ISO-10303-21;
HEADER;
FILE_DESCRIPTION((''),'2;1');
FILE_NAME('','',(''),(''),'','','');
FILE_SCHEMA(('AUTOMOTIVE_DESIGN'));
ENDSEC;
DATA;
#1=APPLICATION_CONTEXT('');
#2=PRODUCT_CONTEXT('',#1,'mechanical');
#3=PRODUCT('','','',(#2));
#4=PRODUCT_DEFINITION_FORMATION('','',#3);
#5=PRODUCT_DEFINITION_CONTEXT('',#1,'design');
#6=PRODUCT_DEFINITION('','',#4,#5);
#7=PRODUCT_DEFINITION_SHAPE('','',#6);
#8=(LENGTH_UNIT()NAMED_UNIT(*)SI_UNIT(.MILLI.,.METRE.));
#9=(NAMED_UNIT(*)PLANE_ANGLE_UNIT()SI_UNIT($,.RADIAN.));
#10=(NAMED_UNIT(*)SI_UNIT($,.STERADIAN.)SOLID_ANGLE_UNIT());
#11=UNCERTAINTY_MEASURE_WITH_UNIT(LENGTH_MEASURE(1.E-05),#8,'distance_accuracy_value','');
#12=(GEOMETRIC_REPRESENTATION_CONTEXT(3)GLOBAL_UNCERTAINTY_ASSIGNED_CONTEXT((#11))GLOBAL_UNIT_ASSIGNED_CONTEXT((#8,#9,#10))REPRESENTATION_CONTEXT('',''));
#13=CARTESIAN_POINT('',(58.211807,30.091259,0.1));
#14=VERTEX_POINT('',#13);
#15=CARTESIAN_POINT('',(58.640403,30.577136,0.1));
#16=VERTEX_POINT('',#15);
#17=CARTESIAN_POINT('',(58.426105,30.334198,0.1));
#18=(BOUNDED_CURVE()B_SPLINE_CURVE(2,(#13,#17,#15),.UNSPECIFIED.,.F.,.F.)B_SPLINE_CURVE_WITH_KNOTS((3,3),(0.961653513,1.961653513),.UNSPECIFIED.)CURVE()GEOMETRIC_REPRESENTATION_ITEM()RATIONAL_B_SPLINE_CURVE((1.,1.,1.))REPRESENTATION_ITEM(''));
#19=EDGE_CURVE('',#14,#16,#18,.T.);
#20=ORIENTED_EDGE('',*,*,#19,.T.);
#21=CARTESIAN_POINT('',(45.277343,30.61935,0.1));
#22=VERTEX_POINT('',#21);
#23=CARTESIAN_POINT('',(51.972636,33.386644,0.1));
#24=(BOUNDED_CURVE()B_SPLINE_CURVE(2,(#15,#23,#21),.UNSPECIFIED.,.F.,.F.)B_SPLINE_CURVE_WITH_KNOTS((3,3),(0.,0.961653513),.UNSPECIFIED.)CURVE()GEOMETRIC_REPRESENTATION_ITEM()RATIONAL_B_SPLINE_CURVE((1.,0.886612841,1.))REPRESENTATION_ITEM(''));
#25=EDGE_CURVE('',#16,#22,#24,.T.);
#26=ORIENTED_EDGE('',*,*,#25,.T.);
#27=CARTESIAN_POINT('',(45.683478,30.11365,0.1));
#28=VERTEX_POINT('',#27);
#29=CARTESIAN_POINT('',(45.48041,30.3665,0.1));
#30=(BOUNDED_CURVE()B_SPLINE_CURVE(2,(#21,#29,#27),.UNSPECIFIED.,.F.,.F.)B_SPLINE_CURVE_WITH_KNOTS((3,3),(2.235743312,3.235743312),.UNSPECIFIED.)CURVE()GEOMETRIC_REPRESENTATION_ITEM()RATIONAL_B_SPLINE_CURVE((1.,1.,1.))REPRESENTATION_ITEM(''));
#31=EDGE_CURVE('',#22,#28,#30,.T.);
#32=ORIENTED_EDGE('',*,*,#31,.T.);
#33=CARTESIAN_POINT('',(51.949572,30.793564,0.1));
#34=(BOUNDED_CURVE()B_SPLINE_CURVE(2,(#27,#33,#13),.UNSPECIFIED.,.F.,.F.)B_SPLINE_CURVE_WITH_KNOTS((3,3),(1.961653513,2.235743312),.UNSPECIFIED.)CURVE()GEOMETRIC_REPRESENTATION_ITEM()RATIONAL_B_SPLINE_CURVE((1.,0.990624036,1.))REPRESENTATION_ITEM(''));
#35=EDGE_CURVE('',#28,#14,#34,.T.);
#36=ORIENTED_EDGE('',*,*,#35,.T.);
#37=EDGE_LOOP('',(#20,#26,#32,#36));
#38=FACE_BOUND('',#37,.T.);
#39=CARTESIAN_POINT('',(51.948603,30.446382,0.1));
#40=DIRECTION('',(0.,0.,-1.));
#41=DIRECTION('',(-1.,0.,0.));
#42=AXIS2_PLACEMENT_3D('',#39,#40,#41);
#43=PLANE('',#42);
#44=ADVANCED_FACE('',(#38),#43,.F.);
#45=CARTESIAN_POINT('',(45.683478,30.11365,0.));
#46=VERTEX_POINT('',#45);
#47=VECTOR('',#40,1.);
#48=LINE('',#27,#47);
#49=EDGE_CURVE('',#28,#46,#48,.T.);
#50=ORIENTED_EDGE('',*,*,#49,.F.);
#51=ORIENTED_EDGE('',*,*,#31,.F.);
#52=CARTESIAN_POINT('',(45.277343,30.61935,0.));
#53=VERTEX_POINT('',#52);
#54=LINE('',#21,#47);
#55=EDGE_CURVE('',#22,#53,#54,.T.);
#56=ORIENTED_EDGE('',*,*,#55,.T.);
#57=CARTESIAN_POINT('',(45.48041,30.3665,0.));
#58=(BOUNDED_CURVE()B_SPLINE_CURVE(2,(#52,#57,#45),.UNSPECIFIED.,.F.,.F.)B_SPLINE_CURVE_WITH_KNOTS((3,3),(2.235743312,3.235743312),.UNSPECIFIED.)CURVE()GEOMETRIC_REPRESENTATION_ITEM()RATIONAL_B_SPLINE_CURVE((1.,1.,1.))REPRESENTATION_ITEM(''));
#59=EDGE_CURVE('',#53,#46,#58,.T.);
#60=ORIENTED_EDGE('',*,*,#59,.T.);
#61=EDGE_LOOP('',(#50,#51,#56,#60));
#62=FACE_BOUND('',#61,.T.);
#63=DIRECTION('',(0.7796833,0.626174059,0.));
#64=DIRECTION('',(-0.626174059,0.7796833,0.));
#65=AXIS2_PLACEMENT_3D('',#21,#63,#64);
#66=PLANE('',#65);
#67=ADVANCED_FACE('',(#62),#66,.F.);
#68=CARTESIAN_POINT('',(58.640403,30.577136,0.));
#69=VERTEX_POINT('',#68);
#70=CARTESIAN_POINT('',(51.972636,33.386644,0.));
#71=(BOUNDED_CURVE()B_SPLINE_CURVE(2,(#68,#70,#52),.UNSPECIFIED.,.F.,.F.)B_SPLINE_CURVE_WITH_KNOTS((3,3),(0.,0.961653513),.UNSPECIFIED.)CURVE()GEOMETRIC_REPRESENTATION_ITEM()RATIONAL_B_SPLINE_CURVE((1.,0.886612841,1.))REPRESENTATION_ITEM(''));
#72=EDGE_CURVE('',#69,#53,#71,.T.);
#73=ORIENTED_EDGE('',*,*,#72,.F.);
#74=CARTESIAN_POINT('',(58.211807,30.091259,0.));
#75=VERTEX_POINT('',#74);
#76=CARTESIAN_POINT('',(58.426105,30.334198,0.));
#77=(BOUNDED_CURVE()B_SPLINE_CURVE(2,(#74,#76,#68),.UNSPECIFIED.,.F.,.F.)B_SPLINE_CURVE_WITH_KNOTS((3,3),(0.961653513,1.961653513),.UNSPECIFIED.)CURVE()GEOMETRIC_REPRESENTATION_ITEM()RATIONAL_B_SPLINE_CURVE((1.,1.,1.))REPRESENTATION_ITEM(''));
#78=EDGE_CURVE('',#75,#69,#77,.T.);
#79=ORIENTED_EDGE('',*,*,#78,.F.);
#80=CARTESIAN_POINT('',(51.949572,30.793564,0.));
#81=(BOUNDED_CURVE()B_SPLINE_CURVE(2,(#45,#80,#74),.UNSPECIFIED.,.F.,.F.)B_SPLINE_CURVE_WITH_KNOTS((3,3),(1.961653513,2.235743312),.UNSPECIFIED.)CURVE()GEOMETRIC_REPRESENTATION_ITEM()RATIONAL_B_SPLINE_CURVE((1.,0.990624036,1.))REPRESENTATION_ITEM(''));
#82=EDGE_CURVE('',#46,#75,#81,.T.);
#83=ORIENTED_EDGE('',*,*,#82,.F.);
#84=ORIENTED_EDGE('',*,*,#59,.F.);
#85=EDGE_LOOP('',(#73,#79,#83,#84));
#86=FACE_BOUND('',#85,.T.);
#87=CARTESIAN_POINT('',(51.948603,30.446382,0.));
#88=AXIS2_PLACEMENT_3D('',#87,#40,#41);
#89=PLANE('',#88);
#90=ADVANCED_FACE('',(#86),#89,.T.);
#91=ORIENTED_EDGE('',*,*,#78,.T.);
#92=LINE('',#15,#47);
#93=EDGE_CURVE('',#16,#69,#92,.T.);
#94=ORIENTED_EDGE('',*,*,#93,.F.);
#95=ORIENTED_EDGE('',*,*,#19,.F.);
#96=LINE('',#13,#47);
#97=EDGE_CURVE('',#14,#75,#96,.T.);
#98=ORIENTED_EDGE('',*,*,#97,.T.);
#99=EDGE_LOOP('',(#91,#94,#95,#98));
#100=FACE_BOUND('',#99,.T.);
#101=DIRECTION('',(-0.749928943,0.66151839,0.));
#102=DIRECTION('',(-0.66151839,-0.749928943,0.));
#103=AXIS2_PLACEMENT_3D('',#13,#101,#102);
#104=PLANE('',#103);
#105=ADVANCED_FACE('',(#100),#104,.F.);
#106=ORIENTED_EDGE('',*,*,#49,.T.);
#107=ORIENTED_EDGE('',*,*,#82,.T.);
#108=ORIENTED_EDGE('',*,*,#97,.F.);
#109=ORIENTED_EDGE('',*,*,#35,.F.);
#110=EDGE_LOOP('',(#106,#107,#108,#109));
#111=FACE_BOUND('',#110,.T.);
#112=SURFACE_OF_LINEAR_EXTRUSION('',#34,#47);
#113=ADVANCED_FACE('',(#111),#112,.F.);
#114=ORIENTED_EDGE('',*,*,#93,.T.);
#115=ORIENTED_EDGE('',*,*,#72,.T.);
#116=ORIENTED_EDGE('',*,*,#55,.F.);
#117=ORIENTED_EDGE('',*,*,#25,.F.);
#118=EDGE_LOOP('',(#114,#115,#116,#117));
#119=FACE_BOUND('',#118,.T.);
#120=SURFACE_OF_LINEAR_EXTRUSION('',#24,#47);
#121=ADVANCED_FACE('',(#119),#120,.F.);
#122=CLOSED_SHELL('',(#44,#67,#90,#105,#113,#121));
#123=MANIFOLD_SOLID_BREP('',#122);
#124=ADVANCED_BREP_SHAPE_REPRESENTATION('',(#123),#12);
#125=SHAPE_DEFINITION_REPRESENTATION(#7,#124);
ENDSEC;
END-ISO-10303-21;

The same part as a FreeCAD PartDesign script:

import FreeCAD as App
import Part
import Sketcher

V = App.Vector

doc = App.newDocument("Part")
body = doc.addObject("PartDesign::Body", "Body")

sketch1 = body.newObject("Sketcher::SketchObject", "Sketch")
sketch1.AttachmentSupport = (doc.getObject("XY_Plane"), [""])
sketch1.MapMode = "FlatFace"
sketch1.addGeometry([
    Part.BSplineCurve([V(45.683478, 30.11365, 0), V(45.48041, 30.3665, 0), V(45.277343, 30.61935, 0)], [3, 3], [2.235743312, 3.235743312], False, 2, [1, 1, 1], False),
    Part.BSplineCurve([V(58.211807, 30.091259, 0), V(51.949572, 30.793564, 0), V(45.683478, 30.11365, 0)], [3, 3], [1.961653513, 2.235743312], False, 2, [1, 0.990624036, 1], False),
    Part.BSplineCurve([V(58.640403, 30.577136, 0), V(58.426105, 30.334198, 0), V(58.211807, 30.091259, 0)], [3, 3], [0.961653513, 1.961653513], False, 2, [1, 1, 1], False),
    Part.BSplineCurve([V(45.277343, 30.61935, 0), V(51.972636, 33.386644, 0), V(58.640403, 30.577136, 0)], [3, 3], [0, 0.961653513], False, 2, [1, 0.886612841, 1], False),
], False)
sketch1.addConstraint([
    Sketcher.Constraint("Block", 0),
    Sketcher.Constraint("Block", 1),
    Sketcher.Constraint("Block", 2),
    Sketcher.Constraint("Block", 3),
])
pad1 = body.newObject("PartDesign::Pad", "Pad")
pad1.Profile = sketch1
pad1.Length = 0.1

doc.recompute()
